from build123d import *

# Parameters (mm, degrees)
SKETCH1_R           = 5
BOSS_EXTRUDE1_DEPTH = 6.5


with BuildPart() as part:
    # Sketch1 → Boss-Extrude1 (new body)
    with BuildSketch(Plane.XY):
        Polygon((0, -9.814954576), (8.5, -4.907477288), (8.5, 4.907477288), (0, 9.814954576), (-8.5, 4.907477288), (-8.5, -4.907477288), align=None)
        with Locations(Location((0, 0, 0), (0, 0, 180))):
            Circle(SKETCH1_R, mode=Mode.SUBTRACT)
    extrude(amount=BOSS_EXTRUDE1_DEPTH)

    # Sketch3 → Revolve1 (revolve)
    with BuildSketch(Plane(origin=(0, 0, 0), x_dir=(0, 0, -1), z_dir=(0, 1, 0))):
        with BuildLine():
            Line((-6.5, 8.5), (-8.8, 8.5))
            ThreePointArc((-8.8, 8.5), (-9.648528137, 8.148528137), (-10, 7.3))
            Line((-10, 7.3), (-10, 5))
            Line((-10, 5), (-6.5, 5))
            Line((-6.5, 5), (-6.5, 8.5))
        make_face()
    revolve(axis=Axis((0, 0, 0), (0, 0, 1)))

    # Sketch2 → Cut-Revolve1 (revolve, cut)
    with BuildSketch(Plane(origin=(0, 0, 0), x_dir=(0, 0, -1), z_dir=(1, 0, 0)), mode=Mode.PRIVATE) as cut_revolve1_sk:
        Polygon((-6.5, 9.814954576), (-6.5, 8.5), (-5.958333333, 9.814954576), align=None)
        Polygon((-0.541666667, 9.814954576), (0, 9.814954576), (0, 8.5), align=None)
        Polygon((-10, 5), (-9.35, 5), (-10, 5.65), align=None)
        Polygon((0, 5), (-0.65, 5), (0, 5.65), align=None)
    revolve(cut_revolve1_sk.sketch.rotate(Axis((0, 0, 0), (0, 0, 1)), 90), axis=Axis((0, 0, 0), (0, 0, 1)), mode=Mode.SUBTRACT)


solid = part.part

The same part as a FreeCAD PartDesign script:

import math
import FreeCAD as App
import Part
import Sketcher
from FreeCAD import Vector
Q = App.Units.Quantity


def add_polygon(sketch, points):
    """Adds a closed chain of lines whose ends are joined by coincident constraints."""
    first, n = sketch.GeometryCount, len(points)
    for a, b in zip(points, points[1:] + points[:1]):
        sketch.addGeometry(Part.LineSegment(App.Vector(*a, 0), App.Vector(*b, 0)), False)
    for i in range(n):
        sketch.addConstraint(Sketcher.Constraint("Coincident", first + i, 2, first + (i + 1) % n, 1))

doc = App.newDocument("Part")
body = doc.addObject("PartDesign::Body", "Body")

sketch1 = body.newObject("Sketcher::SketchObject", "Sketch")
sketch1.AttachmentSupport = (doc.getObject("XY_Plane"), [""])
sketch1.MapMode = "FlatFace"
add_polygon(sketch1, [(0, -9.814955), (8.5, -4.907477), (8.5, 4.907477), (0, 9.814955), (-8.5, 4.907477), (-8.5, -4.907477)])
sketch1.addGeometry(Part.Circle(Vector(0, 0, 0), Vector(0, 0, 1), 5), False)
sketch1.addConstraint([
    Sketcher.Constraint("Vertical", 1),
    Sketcher.Constraint("Vertical", 4),
    Sketcher.Constraint("Coincident", 6, 3, -1, 1),
    Sketcher.Constraint("Symmetric", 0, 2, 3, 2, -1, 1),
    Sketcher.Constraint("Symmetric", 2, 2, 5, 2, -1, 1),
    Sketcher.Constraint("PointOnObject", 2, 2, -2),
    Sketcher.Constraint("Parallel", 2, 5),
    Sketcher.Constraint("Horizontal", 1, 2, 3, 2),
    Sketcher.Constraint("Diameter", 6, Q("10 mm")),
    Sketcher.Constraint("Angle", 0, Q("30 deg")),
    Sketcher.Constraint("DistanceX", 3, 2, 1, 2, Q("17 mm")),
    Sketcher.Constraint("DistanceY", 1, 1, 1, 2, Q("9.814955 mm")),
])
pad1 = body.newObject("PartDesign::Pad", "Pad")
pad1.Profile = sketch1
pad1.Length = 6.5

sketch2 = body.newObject("Sketcher::SketchObject", "Sketch001")
sketch2.AttachmentSupport = (doc.getObject("XZ_Plane"), [""])
sketch2.MapMode = "FlatFace"
sketch2.addGeometry([
    Part.LineSegment(Vector(-8.5, 6.5, 0), Vector(-8.5, 8.8, 0)),
    Part.ArcOfCircle(Part.Circle(Vector(-7.3, 8.8, 0), Vector(0, 0, 1), 1.2), math.radians(90), math.radians(180)),
    Part.LineSegment(Vector(-7.3, 10, 0), Vector(-5, 10, 0)),
    Part.LineSegment(Vector(-5, 10, 0), Vector(-5, 6.5, 0)),
    Part.LineSegment(Vector(-5, 6.5, 0), Vector(-8.5, 6.5, 0)),
], False)
sketch2.addConstraint([
    Sketcher.Constraint("Tangent", 0, 2, 1, 2),
    Sketcher.Constraint("Tangent", 1, 1, 2, 1),
    Sketcher.Constraint("Coincident", 2, 2, 3, 1),
    Sketcher.Constraint("Coincident", 3, 2, 4, 1),
    Sketcher.Constraint("Coincident", 4, 2, 0, 1),
    Sketcher.Constraint("Vertical", 0),
    Sketcher.Constraint("Horizontal", 2),
    Sketcher.Constraint("Vertical", 3),
    Sketcher.Constraint("Horizontal", 4),
    Sketcher.Constraint("Equal", 2, 0),
    Sketcher.Constraint("Radius", 1, Q("1.2 mm")),
    Sketcher.Constraint("DistanceX", 2, 1, 2, 2, Q("2.3 mm")),
    Sketcher.Constraint("DistanceY", -1, 1, 1, 1, Q("10 mm")),
    Sketcher.Constraint("DistanceX", 2, 2, -1, 1, Q("5 mm")),
])
revolution = body.newObject("PartDesign::Revolution", "Revolution")
revolution.Profile = sketch2
revolution.ReferenceAxis = (sketch2, ["V_Axis"])
revolution.Angle = 360

sketch3 = body.newObject("Sketcher::SketchObject", "Sketch002")
sketch3.AttachmentSupport = (doc.getObject("YZ_Plane"), [""])
sketch3.MapMode = "FlatFace"
add_polygon(sketch3, [(9.814955, 6.5), (8.5, 6.5), (9.814955, 5.958333)])
add_polygon(sketch3, [(9.814955, 0), (9.814955, 0.541667), (8.5, 0)])
add_polygon(sketch3, [(5, 10), (5, 9.35), (5.65, 10)])
add_polygon(sketch3, [(5, 0.65), (5, 0), (5.65, 0)])
sketch3.addConstraint([
    Sketcher.Constraint("Horizontal", 0),
    Sketcher.Constraint("Vertical", 2),
    Sketcher.Constraint("Vertical", 3),
    Sketcher.Constraint("Horizontal", 5),
    Sketcher.Constraint("Vertical", 6),
    Sketcher.Constraint("Horizontal", 8),
    Sketcher.Constraint("Vertical", 9),
    Sketcher.Constraint("Horizontal", 10),
    Sketcher.Constraint("PointOnObject", 4, 2, -1),
    Sketcher.Constraint("PointOnObject", 9, 2, -1),
    Sketcher.Constraint("Perpendicular", 7, 11),
    Sketcher.Constraint("Vertical", 2, 2, 3, 2),
    Sketcher.Constraint("Vertical", 0, 2, 4, 2),
    Sketcher.Constraint("Vertical", 8, 2, 9, 2),
    Sketcher.Constraint("Vertical", 7, 2, 10, 2),
    Sketcher.Constraint("Equal", 2, 3),
    Sketcher.Constraint("Equal", 10, 6),
    Sketcher.Constraint("DistanceX", -1, 1, 6, 2, Q("5 mm")),
    Sketcher.Constraint("DistanceY", -1, 1, 7, 2, Q("10 mm")),
    Sketcher.Constraint("DistanceX", 8, 2, 8, 1, Q("0.65 mm")),
    Sketcher.Constraint("DistanceX", -1, 1, 0, 2, Q("8.5 mm")),
    Sketcher.Constraint("DistanceY", -1, 1, 0, 2, Q("6.5 mm")),
    Sketcher.Constraint("Distance", 1, Q("1.422149 mm")),
    Sketcher.Constraint("DistanceX", 0, 2, 0, 1, Q("1.314955 mm")),
])
groove = body.newObject("PartDesign::Groove", "Groove")
groove.Profile = sketch3
groove.ReferenceAxis = (sketch3, ["V_Axis"])
groove.Angle = 360

doc.recompute()
